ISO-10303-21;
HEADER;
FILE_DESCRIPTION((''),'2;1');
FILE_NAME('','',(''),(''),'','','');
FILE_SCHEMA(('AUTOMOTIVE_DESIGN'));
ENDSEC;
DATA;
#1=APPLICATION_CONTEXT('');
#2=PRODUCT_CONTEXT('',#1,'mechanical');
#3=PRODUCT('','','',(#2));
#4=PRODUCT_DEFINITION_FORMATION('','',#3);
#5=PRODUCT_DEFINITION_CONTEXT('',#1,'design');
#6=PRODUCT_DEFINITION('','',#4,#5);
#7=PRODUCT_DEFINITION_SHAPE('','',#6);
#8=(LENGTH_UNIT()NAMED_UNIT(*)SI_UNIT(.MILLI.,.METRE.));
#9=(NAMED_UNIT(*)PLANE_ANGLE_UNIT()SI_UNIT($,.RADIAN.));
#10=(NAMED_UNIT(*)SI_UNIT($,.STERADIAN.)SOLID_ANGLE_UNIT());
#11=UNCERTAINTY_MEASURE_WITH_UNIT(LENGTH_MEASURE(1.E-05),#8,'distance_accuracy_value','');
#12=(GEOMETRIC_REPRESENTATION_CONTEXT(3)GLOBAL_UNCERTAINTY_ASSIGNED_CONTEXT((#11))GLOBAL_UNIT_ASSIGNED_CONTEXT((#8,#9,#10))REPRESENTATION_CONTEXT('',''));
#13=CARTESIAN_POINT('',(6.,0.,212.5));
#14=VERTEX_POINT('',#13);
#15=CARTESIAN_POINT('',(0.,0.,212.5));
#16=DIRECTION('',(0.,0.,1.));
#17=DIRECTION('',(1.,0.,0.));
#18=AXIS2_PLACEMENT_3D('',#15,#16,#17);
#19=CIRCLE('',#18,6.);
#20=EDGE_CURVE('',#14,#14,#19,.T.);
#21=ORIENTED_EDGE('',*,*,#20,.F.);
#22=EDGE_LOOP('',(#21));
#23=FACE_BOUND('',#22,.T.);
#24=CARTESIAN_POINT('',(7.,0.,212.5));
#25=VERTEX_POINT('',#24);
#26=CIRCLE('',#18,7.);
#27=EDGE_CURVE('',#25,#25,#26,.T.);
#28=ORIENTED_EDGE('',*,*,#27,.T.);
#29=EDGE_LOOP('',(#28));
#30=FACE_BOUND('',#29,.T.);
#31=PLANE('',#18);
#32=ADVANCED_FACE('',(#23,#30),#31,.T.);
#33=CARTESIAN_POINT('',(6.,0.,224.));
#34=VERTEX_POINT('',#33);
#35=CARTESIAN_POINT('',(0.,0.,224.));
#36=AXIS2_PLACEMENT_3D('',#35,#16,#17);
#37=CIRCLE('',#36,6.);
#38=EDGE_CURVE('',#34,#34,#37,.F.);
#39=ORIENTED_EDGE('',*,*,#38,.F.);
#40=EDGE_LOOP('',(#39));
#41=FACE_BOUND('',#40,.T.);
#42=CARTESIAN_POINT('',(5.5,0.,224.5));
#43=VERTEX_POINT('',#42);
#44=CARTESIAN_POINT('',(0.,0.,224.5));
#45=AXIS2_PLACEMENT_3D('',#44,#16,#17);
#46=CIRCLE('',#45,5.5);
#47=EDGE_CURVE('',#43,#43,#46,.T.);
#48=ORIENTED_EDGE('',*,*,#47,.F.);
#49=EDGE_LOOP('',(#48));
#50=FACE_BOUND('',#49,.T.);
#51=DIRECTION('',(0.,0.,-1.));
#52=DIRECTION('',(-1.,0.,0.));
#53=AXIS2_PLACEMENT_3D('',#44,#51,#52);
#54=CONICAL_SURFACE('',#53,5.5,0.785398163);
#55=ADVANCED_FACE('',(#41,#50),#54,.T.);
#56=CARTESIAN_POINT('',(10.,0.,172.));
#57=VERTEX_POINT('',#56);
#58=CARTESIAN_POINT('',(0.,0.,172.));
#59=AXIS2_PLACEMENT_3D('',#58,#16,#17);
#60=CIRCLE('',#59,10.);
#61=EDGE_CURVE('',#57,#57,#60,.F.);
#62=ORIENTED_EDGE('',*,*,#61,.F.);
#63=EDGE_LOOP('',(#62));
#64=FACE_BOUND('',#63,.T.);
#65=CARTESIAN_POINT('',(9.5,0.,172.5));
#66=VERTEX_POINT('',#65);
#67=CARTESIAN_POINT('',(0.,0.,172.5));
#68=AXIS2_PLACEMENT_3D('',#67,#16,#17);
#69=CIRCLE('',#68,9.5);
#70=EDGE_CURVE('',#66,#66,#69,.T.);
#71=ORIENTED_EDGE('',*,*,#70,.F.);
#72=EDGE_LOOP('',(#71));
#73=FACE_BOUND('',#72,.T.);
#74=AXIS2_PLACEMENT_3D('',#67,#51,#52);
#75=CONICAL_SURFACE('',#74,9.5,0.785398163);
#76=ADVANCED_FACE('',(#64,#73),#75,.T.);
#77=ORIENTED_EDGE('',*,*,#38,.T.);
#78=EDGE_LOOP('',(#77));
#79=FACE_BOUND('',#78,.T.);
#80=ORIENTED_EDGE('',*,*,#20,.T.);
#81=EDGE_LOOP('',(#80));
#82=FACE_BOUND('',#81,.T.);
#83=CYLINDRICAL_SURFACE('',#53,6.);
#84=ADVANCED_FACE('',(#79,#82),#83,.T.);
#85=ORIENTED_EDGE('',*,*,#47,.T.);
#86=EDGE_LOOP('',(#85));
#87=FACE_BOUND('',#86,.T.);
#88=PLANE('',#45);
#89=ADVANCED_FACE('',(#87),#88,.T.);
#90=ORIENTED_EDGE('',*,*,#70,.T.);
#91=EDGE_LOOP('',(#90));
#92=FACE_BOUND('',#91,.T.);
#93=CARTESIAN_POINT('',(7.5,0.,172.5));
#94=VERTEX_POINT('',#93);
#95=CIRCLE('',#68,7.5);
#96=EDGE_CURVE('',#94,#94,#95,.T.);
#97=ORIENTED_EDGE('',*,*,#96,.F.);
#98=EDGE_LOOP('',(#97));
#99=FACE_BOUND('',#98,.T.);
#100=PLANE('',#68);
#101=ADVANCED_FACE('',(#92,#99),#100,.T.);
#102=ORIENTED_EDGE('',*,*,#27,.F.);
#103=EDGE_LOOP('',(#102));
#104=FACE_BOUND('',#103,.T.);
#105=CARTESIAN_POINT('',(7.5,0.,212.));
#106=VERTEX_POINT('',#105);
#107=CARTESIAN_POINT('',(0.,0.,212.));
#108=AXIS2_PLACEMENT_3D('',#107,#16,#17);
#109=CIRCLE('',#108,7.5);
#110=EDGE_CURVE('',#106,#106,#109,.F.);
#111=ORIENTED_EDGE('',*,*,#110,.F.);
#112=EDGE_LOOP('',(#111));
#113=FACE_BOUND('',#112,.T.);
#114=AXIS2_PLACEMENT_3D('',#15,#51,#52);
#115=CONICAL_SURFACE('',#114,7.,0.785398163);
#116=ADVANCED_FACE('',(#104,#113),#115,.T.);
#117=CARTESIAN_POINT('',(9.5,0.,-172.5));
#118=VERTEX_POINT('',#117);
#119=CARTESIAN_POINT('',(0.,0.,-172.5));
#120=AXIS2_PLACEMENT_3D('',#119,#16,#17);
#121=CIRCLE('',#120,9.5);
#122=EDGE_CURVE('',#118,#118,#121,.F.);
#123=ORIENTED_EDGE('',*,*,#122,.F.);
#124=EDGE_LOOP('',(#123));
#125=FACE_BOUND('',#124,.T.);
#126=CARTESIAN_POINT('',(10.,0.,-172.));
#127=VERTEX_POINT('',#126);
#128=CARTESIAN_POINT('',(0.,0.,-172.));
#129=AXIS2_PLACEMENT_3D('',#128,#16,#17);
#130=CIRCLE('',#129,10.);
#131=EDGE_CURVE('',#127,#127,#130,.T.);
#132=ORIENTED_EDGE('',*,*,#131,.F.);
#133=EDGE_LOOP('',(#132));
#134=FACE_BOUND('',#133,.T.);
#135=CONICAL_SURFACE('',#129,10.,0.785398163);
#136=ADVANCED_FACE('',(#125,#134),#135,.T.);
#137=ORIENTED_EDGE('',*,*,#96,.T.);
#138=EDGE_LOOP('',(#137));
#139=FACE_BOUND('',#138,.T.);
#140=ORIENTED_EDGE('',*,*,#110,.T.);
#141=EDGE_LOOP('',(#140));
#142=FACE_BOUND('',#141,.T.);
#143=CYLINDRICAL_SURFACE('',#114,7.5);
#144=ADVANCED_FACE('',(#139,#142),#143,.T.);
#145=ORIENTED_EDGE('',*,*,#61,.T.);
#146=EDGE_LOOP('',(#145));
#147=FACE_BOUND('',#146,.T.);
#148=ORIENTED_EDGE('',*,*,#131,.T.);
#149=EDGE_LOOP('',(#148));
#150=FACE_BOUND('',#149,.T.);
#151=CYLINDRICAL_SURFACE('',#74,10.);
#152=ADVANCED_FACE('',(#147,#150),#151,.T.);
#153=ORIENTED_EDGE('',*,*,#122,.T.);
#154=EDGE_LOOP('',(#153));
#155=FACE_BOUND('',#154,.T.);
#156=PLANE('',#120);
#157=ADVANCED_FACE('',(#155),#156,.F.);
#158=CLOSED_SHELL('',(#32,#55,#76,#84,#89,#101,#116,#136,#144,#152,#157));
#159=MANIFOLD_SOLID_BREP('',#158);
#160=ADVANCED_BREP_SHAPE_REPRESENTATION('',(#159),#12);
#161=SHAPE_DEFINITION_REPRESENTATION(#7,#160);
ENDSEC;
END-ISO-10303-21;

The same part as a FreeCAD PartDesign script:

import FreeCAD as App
import Part
import Sketcher


def edges_at(feature, points):
    """Names of the edges that pass closest to the given points."""
    edges = feature.Shape.Edges
    near = lambda p: min(range(len(edges)), key=lambda i: edges[i].distToShape(Part.Vertex(*p))[0])
    return sorted({f"Edge{near(p) + 1}" for p in points})

doc = App.newDocument("Part")
body = doc.addObject("PartDesign::Body", "Body")

sketch1 = body.newObject("Sketcher::SketchObject", "Sketch")
sketch1.AttachmentSupport = (doc.getObject("XY_Plane"), [""])
sketch1.MapMode = "FlatFace"
sketch1.addGeometry(Part.Circle(App.Vector(0, 0, 0), App.Vector(0, 0, 1), 10), False)
sketch1.addConstraint([
    Sketcher.Constraint("Coincident", 0, 3, -1, 1),
    Sketcher.Constraint("Diameter", 0, 20.0),
])
pad1 = body.newObject("PartDesign::Pad", "Pad")
pad1.Profile = sketch1
pad1.Length = 345
pad1.Midplane = True

sketch2 = body.newObject("Sketcher::SketchObject", "Sketch001")
sketch2.AttachmentSupport = (doc.getObject("XY_Plane"), [""])
sketch2.MapMode = "FlatFace"
sketch2.AttachmentOffset = App.Placement(App.Vector(0, 0, 172.5), App.Rotation())
sketch2.addGeometry(Part.Circle(App.Vector(0, 0, 0), App.Vector(0, 0, 1), 8), False)
sketch2.addConstraint([
    Sketcher.Constraint("Coincident", 0, 3, -1, 1),
    Sketcher.Constraint("Diameter", 0, 15.0),
])
pad2 = body.newObject("PartDesign::Pad", "Pad001")
pad2.Profile = sketch2
pad2.Length = 40

sketch3 = body.newObject("Sketcher::SketchObject", "Sketch002")
sketch3.AttachmentSupport = (doc.getObject("XY_Plane"), [""])
sketch3.MapMode = "FlatFace"
sketch3.AttachmentOffset = App.Placement(App.Vector(0, 0, 212.5), App.Rotation())
sketch3.addGeometry(Part.Circle(App.Vector(0, 0, 0), App.Vector(0, 0, 1), 6), False)
sketch3.addConstraint([
    Sketcher.Constraint("Coincident", 0, 3, -1, 1),
    Sketcher.Constraint("Diameter", 0, 12.0),
])
pad3 = body.newObject("PartDesign::Pad", "Pad002")
pad3.Profile = sketch3
pad3.Length = 12
doc.recompute()

chamfer = body.newObject("PartDesign::Chamfer", "Chamfer")
chamfer.Base = (pad3, edges_at(pad3, [
    (-6, 0, 224.5),
    (-10, 0, -172.5),
    (-10, 0, 172.5),
    (-7.5, 0, 212.5),
]))
chamfer.Size = 0.5

doc.recompute()
